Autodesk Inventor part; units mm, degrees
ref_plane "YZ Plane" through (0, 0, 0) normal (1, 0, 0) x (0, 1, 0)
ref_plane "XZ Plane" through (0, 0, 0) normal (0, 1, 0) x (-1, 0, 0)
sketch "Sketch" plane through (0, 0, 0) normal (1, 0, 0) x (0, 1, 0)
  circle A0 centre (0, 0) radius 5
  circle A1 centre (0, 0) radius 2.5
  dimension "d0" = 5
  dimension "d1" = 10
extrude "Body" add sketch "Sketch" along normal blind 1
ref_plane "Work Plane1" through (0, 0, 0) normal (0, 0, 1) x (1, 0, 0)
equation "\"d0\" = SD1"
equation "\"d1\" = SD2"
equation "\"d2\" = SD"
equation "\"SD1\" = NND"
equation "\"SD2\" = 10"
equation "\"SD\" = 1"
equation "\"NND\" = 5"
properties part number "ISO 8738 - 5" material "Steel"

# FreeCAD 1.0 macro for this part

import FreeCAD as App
import Part
import Sketcher

V = App.Vector

doc = App.newDocument("Part")
body = doc.addObject("PartDesign::Body", "Body")

sketch1 = body.newObject("Sketcher::SketchObject", "Sketch")
sketch1.AttachmentSupport = (doc.getObject("YZ_Plane"), [""])
sketch1.MapMode = "FlatFace"
sketch1.addGeometry([
    Part.Circle(V(0, 0, 0), V(0, 0, 1), 5),
    Part.Circle(V(0, 0, 0), V(0, 0, 1), 2.5),
], False)
sketch1.addConstraint([
    Sketcher.Constraint("Coincident", 0, 3, -1, 1),
    Sketcher.Constraint("Coincident", 1, 3, -1, 1),
    Sketcher.Constraint("Diameter", 0, 10.0),
    Sketcher.Constraint("Diameter", 1, 5.0),
])
pad1 = body.newObject("PartDesign::Pad", "Pad")
pad1.Profile = sketch1
pad1.Length = 1

doc.recompute()
